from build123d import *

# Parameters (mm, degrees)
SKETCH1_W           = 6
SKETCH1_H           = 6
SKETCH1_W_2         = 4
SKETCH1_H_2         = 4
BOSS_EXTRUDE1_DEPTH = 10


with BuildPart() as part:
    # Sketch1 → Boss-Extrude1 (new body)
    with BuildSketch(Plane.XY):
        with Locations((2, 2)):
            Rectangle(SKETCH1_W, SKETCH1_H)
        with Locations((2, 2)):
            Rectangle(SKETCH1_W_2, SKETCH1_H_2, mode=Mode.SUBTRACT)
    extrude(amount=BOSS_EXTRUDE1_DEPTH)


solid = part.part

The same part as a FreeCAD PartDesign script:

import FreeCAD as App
import Part
import Sketcher

V = App.Vector
Q = App.Units.Quantity


def add_polygon(sketch, points):
    """Adds a closed chain of lines whose ends are joined by coincident constraints."""
    first, n = sketch.GeometryCount, len(points)
    for a, b in zip(points, points[1:] + points[:1]):
        sketch.addGeometry(Part.LineSegment(App.Vector(*a, 0), App.Vector(*b, 0)), False)
    for i in range(n):
        sketch.addConstraint(Sketcher.Constraint("Coincident", first + i, 2, first + (i + 1) % n, 1))

doc = App.newDocument("Part")
params = doc.addObject("Spreadsheet::Sheet", "Params")
for row, (alias, value) in enumerate([
    ("sketch1_width", "6 mm"),
    ("sketch1_width2", "4 mm"),
    ("pad1_length", "10 mm"),
], start=1):
    params.set(f"A{row}", alias)
    params.set(f"B{row}", "=" + value)
    params.setAlias(f"B{row}", alias)

body = doc.addObject("PartDesign::Body", "Body")

# Sketch on XY plane
sketch1 = body.newObject("Sketcher::SketchObject", "Sketch")
sketch1.AttachmentSupport = (doc.getObject("XY_Plane"), [""])
sketch1.MapMode = "FlatFace"
add_polygon(sketch1, [(-1, 5), (-1, -1), (5, -1), (5, 5)])  # lines 0-3
add_polygon(sketch1, [(4, 0), (0, 0), (0, 4), (4, 4)])  # lines 4-7
sketch1.addConstraint([
    Sketcher.Constraint("Vertical", 0),
    Sketcher.Constraint("Horizontal", 1),
    Sketcher.Constraint("Vertical", 2),
    Sketcher.Constraint("Horizontal", 3),
    Sketcher.Constraint("Horizontal", 4),
    Sketcher.Constraint("Vertical", 5),
    Sketcher.Constraint("Horizontal", 6),
    Sketcher.Constraint("Vertical", 7),
    Sketcher.Constraint("Coincident", 4, 2, -1, 1),
    Sketcher.Constraint("Equal", 3, 0),
    Sketcher.Constraint("Equal", 6, 5),
    Sketcher.Constraint("DistanceX", 1, 1, 1, 2, Q("6 mm")),
    Sketcher.Constraint("DistanceX", 4, 2, 4, 1, Q("4 mm")),
    Sketcher.Constraint("DistanceX", 0, 2, -1, 1, Q("1 mm")),
    Sketcher.Constraint("DistanceY", 0, 2, -1, 1, Q("1 mm")),
])
sketch1.setExpression("Constraints[19]", "Params.sketch1_width")
sketch1.setExpression("Constraints[20]", "Params.sketch1_width2")
pad1 = body.newObject("PartDesign::Pad", "Pad")
pad1.Profile = sketch1
pad1.setExpression("Length", "Params.pad1_length")

doc.recompute()
